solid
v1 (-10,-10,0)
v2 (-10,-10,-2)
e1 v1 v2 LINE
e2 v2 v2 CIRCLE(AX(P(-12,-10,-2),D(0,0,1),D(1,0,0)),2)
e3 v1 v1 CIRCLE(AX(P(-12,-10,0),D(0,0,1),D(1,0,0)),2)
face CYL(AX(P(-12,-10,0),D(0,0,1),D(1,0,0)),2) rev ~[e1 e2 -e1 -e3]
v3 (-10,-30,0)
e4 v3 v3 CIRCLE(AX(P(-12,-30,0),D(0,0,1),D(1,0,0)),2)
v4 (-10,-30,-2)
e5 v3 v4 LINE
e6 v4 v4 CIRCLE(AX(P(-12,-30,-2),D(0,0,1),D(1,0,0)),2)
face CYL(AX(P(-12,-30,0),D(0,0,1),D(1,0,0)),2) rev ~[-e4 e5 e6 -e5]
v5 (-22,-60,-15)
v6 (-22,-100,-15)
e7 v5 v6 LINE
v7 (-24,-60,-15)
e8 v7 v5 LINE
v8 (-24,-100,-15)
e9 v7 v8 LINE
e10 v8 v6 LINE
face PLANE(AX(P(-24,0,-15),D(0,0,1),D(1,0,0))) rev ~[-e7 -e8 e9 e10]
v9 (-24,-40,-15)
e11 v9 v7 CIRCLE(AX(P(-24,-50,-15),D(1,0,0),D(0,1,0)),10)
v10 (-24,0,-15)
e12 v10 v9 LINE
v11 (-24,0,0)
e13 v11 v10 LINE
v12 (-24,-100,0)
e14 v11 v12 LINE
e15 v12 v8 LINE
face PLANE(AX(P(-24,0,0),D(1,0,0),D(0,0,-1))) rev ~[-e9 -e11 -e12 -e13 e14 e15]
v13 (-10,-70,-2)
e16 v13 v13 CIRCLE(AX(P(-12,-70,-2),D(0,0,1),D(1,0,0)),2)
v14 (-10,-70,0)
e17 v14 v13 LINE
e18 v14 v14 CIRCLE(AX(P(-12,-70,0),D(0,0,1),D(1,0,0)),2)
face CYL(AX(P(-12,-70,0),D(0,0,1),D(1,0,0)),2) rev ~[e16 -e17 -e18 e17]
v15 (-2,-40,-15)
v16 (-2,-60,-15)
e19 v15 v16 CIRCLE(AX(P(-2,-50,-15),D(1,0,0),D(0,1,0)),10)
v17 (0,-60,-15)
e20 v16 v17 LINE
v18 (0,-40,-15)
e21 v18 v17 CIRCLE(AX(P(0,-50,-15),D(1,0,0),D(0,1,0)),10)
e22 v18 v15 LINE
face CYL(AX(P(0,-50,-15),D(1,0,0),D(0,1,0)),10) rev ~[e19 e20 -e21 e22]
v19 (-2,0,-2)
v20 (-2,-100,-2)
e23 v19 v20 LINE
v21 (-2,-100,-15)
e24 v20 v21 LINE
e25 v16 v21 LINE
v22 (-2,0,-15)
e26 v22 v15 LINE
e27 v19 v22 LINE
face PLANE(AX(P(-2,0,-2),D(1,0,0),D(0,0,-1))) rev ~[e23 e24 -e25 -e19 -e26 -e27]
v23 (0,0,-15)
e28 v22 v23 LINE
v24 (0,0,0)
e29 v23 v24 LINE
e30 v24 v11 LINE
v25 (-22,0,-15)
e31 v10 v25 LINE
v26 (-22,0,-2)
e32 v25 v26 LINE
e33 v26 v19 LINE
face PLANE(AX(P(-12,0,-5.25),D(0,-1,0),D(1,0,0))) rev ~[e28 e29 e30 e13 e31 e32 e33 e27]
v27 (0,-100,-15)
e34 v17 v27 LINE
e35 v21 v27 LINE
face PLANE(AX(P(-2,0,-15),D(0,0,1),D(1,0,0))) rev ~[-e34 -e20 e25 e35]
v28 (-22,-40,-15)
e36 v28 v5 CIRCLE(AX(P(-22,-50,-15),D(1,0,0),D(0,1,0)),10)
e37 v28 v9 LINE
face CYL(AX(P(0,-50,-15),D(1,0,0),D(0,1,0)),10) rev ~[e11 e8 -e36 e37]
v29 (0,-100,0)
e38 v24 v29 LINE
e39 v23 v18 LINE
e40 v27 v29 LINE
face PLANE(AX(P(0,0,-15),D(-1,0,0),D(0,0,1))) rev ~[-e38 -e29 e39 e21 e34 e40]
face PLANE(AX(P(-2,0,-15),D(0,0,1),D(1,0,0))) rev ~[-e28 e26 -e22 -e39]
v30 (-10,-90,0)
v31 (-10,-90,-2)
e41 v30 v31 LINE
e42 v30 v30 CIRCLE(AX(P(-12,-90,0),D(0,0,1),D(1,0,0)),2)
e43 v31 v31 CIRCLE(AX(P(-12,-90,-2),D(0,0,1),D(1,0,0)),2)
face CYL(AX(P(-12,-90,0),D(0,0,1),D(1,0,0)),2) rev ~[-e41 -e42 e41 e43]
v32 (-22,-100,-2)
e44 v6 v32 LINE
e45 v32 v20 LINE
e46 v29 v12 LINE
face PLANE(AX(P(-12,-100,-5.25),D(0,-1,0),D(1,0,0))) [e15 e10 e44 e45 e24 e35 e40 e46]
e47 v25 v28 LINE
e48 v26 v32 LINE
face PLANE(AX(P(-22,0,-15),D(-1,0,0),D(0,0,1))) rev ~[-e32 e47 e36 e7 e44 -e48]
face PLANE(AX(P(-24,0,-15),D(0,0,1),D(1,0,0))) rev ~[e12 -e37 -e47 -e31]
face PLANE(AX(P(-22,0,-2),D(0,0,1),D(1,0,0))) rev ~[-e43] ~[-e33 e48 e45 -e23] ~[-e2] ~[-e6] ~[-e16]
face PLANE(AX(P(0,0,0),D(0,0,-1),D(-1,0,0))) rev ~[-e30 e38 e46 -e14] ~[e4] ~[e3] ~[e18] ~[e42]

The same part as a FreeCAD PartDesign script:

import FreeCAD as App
import Part
import Sketcher
from FreeCAD import Vector


def add_polygon(sketch, points):
    """Adds a closed chain of lines whose ends are joined by coincident constraints."""
    first, n = sketch.GeometryCount, len(points)
    for a, b in zip(points, points[1:] + points[:1]):
        sketch.addGeometry(Part.LineSegment(App.Vector(*a, 0), App.Vector(*b, 0)), False)
    for i in range(n):
        sketch.addConstraint(Sketcher.Constraint("Coincident", first + i, 2, first + (i + 1) % n, 1))

doc = App.newDocument("Part")
params = doc.addObject("Spreadsheet::Sheet", "Params")
for row, (alias, value) in enumerate([
    ("sketch1_width", "24 mm"),
    ("sketch1_width2", "2 mm"),
    ("sketch1_height", "15 mm"),
    ("sketch1_height2", "13 mm"),
    ("pad1_length", "100 mm"),
    ("sketch2_diameter", "20 mm"),
    ("pocket1_length", "25 mm"),
    ("sketch3_diameter", "4 mm"),
    ("pocket2_length", "25 mm"),
], start=1):
    params.set(f"A{row}", alias)
    params.set(f"B{row}", "=" + value)
    params.setAlias(f"B{row}", alias)

body = doc.addObject("PartDesign::Body", "Body")

# Sketch on XZ plane
sketch1 = doc.addObject("Sketcher::SketchObject", "Sketch")
body.addObject(sketch1)
sketch1.AttachmentSupport = (doc.XZ_Plane, [""])
sketch1.MapMode = "FlatFace"
add_polygon(sketch1, [(0, -15), (0, 0), (-24, 0), (-24, -15), (-22, -15), (-22, -2), (-2, -2), (-2, -15)])  # lines 0-7
sketch1.addConstraint(Sketcher.Constraint("Vertical", 0))
sketch1.addConstraint(Sketcher.Constraint("Horizontal", 1))
sketch1.addConstraint(Sketcher.Constraint("Vertical", 2))
sketch1.addConstraint(Sketcher.Constraint("Horizontal", 3))
sketch1.addConstraint(Sketcher.Constraint("Vertical", 4))
sketch1.addConstraint(Sketcher.Constraint("Horizontal", 5))
sketch1.addConstraint(Sketcher.Constraint("Vertical", 6))
sketch1.addConstraint(Sketcher.Constraint("Horizontal", 7))
sketch1.addConstraint(Sketcher.Constraint("Coincident", 0, 2, -1, 1))
sketch1.addConstraint(Sketcher.Constraint("Horizontal", 3, 2, 6, 2))
sketch1.addConstraint(Sketcher.Constraint("Equal", 3, 7))
sketch1.addConstraint(Sketcher.Constraint("DistanceX", 1, 2, 1, 1, 24.0))
sketch1.addConstraint(Sketcher.Constraint("DistanceX", 3, 1, 3, 2, 2.0))
sketch1.addConstraint(Sketcher.Constraint("DistanceY", 0, 1, 0, 2, 15.0))
sketch1.addConstraint(Sketcher.Constraint("DistanceY", 4, 1, 4, 2, 13.0))
sketch1.setExpression("Constraints[19]", "Params.sketch1_width")
sketch1.setExpression("Constraints[20]", "Params.sketch1_width2")
sketch1.setExpression("Constraints[21]", "Params.sketch1_height")
sketch1.setExpression("Constraints[22]", "Params.sketch1_height2")
pad1 = doc.addObject("PartDesign::Pad", "Pad")
body.addObject(pad1)
pad1.Profile = sketch1
pad1.setExpression("Length", "Params.pad1_length")

# Sketch on YZ plane
sketch2 = doc.addObject("Sketcher::SketchObject", "Sketch001")
body.addObject(sketch2)
sketch2.AttachmentSupport = (doc.YZ_Plane, [""])
sketch2.MapMode = "FlatFace"
sketch2.addGeometry(Part.Circle(Vector(-50, -15, 0), Vector(0, 0, 1), 10), False)
sketch2.addConstraint(Sketcher.Constraint("Diameter", 0, 20.0))
sketch2.addConstraint(Sketcher.Constraint("DistanceX", 0, 3, -1, 1, 50.0))
sketch2.addConstraint(Sketcher.Constraint("DistanceY", 0, 3, -1, 1, 15.0))
sketch2.setExpression("Constraints[0]", "Params.sketch2_diameter")
pocket1 = doc.addObject("PartDesign::Pocket", "Pocket")
body.addObject(pocket1)
pocket1.Profile = sketch2
pocket1.setExpression("Length", "Params.pocket1_length")

# Sketch on XY plane
sketch3 = doc.addObject("Sketcher::SketchObject", "Sketch002")
body.addObject(sketch3)
sketch3.AttachmentSupport = (doc.XY_Plane, [""])
sketch3.MapMode = "FlatFace"
sketch3.addGeometry(Part.Circle(Vector(-12, -90, 0), Vector(0, 0, 1), 2), False)
sketch3.addGeometry(Part.Circle(Vector(-12, -70, 0), Vector(0, 0, 1), 2), False)
sketch3.addGeometry(Part.Circle(Vector(-12, -30, 0), Vector(0, 0, 1), 2), False)
sketch3.addGeometry(Part.Circle(Vector(-12, -10, 0), Vector(0, 0, 1), 2), False)
sketch3.addConstraint(Sketcher.Constraint("Equal", 0, 1))
sketch3.addConstraint(Sketcher.Constraint("Equal", 1, 2))
sketch3.addConstraint(Sketcher.Constraint("Equal", 2, 3))
sketch3.addConstraint(Sketcher.Constraint("Vertical", 0, 3, 1, 3))
sketch3.addConstraint(Sketcher.Constraint("Vertical", 1, 3, 2, 3))
sketch3.addConstraint(Sketcher.Constraint("Vertical", 2, 3, 3, 3))
sketch3.addConstraint(Sketcher.Constraint("Diameter", 0, 4.0))
sketch3.addConstraint(Sketcher.Constraint("DistanceX", 0, 3, -1, 1, 12.0))
sketch3.addConstraint(Sketcher.Constraint("DistanceY", 0, 3, -1, 1, 90.0))
sketch3.addConstraint(Sketcher.Constraint("DistanceY", 1, 3, -1, 1, 70.0))
sketch3.addConstraint(Sketcher.Constraint("DistanceY", 2, 3, -1, 1, 30.0))
sketch3.addConstraint(Sketcher.Constraint("DistanceY", 3, 3, -1, 1, 10.0))
sketch3.setExpression("Constraints[6]", "Params.sketch3_diameter")
pocket2 = doc.addObject("PartDesign::Pocket", "Pocket001")
body.addObject(pocket2)
pocket2.Profile = sketch3
pocket2.setExpression("Length", "Params.pocket2_length")

doc.recompute()
